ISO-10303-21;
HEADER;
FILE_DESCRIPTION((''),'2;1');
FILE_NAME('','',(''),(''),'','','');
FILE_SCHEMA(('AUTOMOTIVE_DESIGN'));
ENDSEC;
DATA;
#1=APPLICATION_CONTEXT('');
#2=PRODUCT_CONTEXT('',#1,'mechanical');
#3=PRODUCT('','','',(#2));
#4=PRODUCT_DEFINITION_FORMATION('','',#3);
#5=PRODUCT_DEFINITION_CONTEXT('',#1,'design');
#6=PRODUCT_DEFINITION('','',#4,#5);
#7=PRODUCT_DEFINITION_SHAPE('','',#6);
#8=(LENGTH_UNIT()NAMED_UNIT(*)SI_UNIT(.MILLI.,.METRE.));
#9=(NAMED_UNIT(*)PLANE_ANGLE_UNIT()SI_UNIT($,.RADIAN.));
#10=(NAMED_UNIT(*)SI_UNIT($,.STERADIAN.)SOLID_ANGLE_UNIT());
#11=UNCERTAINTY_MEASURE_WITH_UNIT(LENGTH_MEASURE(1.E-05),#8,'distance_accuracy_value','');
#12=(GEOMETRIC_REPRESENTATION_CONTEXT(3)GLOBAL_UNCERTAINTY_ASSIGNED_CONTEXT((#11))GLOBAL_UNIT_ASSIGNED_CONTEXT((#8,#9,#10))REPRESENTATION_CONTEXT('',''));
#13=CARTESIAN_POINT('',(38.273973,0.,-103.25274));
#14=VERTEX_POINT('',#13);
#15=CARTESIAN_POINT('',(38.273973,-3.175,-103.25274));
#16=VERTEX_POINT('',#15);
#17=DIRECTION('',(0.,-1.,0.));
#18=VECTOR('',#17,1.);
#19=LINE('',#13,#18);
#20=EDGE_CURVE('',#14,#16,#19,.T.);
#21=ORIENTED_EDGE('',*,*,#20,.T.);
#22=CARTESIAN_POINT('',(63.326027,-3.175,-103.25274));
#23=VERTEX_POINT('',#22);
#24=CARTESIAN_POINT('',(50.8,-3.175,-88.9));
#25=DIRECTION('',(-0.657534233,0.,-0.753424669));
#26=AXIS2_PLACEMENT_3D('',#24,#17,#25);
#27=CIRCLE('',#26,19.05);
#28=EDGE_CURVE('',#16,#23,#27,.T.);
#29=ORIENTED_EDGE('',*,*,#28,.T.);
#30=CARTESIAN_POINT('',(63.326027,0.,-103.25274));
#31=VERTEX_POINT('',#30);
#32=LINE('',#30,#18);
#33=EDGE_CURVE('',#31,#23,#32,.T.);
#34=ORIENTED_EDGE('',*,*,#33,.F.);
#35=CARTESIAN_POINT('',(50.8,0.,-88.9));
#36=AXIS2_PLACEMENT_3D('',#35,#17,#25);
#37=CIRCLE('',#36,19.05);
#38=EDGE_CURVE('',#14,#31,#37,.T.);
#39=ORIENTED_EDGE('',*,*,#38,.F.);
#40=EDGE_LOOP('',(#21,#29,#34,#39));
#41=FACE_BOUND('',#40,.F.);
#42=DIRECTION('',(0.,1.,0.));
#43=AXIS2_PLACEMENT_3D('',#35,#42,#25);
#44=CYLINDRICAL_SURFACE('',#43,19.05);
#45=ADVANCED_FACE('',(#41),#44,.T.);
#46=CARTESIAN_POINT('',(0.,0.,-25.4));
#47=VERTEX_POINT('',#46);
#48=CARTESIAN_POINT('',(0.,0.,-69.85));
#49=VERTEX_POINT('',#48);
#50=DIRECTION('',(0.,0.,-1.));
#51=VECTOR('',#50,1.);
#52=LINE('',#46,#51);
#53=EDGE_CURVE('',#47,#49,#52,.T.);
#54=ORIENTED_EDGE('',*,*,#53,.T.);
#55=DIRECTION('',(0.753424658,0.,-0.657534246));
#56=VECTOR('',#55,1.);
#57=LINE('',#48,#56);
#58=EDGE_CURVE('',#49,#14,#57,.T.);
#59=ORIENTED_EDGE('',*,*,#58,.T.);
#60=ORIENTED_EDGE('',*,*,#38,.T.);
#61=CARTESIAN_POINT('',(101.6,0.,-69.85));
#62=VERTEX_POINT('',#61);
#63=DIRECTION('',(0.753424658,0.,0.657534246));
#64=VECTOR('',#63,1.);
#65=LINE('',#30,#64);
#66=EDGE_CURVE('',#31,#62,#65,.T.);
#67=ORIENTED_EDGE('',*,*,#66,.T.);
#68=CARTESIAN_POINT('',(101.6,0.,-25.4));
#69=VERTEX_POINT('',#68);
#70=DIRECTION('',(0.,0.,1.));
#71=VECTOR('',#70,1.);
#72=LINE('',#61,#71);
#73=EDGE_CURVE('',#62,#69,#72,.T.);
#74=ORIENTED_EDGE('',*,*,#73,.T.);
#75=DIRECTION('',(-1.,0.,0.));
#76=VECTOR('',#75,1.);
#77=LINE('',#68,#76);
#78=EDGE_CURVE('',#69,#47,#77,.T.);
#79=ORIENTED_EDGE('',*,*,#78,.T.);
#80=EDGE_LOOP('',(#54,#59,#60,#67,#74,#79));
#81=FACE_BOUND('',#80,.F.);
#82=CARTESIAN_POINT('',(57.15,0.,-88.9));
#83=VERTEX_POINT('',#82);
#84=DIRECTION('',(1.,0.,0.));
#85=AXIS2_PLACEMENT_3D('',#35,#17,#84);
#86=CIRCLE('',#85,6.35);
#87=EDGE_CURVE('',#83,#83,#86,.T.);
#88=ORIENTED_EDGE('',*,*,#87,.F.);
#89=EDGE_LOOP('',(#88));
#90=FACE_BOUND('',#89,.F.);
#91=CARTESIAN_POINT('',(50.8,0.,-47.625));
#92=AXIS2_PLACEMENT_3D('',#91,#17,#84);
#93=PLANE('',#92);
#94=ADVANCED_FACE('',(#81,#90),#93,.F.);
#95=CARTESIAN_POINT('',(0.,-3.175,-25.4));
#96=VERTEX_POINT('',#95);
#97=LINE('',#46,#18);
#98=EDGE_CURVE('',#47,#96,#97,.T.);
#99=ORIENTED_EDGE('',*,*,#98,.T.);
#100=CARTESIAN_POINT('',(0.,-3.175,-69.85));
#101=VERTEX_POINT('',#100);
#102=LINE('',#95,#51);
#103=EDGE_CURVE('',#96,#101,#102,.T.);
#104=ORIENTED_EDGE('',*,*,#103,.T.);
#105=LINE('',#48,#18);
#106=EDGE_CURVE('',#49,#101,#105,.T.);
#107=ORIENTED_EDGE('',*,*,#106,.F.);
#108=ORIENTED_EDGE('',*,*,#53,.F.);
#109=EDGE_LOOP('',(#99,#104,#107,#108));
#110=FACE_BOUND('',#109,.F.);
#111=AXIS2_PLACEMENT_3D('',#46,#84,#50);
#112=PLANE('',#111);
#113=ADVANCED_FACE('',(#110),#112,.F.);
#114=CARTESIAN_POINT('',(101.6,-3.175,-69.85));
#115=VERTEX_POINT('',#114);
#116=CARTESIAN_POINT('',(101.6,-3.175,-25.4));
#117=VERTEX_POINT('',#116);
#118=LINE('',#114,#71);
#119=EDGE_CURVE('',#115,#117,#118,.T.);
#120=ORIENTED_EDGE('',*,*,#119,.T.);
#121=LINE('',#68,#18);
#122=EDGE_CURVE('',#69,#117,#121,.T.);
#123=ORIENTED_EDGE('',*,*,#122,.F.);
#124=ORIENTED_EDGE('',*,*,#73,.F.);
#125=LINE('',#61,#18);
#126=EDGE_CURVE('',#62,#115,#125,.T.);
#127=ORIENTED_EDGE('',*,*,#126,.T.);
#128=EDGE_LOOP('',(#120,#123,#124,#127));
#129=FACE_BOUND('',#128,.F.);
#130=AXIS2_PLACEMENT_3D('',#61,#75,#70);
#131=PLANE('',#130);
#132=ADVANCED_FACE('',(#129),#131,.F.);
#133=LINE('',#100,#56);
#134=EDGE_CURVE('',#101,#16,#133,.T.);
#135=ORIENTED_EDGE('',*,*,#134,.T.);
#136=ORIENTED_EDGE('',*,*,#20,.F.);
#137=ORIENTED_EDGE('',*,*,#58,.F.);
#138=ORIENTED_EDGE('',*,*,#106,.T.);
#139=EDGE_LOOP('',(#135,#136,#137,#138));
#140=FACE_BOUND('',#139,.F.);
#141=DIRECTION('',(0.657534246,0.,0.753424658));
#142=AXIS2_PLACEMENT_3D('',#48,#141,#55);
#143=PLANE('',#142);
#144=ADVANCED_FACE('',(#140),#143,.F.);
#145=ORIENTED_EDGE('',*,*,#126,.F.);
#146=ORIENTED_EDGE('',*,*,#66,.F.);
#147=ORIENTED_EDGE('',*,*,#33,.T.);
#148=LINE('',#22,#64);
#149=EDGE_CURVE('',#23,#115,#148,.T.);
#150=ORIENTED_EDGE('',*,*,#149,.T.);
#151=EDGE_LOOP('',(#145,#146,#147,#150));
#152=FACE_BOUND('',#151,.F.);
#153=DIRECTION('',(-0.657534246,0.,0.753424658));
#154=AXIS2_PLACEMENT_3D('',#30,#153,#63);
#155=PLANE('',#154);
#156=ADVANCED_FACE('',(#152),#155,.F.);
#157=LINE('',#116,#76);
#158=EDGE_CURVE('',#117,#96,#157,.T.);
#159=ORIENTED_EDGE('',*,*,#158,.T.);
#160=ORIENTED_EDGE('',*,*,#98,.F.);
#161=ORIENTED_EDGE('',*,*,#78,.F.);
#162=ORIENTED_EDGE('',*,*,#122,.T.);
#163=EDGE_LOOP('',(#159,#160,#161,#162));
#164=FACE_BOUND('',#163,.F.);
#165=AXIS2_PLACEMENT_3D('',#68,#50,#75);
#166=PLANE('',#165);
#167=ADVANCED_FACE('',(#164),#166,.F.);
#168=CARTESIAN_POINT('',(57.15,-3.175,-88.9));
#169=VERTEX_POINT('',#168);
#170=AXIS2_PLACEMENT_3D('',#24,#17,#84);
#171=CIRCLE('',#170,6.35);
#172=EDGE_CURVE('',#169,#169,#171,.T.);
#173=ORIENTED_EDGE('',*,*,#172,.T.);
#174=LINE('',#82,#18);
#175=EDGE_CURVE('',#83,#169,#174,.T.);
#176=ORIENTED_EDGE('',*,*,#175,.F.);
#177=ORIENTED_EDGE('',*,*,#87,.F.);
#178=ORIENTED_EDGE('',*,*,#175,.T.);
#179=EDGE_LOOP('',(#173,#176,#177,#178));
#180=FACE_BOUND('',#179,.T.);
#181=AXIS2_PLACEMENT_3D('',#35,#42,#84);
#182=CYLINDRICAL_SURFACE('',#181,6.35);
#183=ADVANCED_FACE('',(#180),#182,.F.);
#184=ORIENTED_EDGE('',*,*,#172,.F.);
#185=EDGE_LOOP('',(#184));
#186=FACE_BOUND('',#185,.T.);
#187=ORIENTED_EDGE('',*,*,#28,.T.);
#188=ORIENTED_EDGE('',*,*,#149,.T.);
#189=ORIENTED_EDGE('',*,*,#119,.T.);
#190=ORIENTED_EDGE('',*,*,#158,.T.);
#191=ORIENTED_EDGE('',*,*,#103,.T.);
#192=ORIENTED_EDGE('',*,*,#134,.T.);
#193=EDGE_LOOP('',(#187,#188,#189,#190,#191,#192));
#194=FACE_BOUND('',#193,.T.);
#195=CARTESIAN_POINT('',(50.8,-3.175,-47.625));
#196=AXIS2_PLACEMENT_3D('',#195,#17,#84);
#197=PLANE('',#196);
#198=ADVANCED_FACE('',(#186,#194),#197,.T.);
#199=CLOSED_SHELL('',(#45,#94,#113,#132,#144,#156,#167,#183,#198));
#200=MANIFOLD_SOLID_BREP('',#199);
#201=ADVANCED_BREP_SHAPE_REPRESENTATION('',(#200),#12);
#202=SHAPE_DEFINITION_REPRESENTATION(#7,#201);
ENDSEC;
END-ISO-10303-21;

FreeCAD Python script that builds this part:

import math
import FreeCAD as App
import Part
import Sketcher
from FreeCAD import Vector
Q = App.Units.Quantity

doc = App.newDocument("Part")
body = doc.addObject("PartDesign::Body", "Body")

# Sketch on XZ plane
sketch1 = doc.addObject("Sketcher::SketchObject", "Sketch")
body.addObject(sketch1)
sketch1.AttachmentSupport = (doc.XZ_Plane, [""])
sketch1.MapMode = "FlatFace"
sketch1.addGeometry(Part.LineSegment(Vector(102, -25, 0), Vector(0, -25, 0)), False)
sketch1.addGeometry(Part.LineSegment(Vector(0, -25, 0), Vector(0, -70, 0)), False)
sketch1.addGeometry(Part.LineSegment(Vector(0, -70, 0), Vector(38, -103, 0)), False)
sketch1.addGeometry(Part.ArcOfCircle(Part.Circle(Vector(51, -89, 0), Vector(0, 0, 1), 19), math.radians(-131), math.radians(-49)), False)
sketch1.addGeometry(Part.LineSegment(Vector(63, -103, 0), Vector(102, -70, 0)), False)
sketch1.addGeometry(Part.LineSegment(Vector(102, -70, 0), Vector(102, -25, 0)), False)
sketch1.addGeometry(Part.Circle(Vector(51, -89, 0), Vector(0, 0, 1), 6), False)
sketch1.addConstraint(Sketcher.Constraint("Coincident", 0, 2, 1, 1))
sketch1.addConstraint(Sketcher.Constraint("Coincident", 1, 2, 2, 1))
sketch1.addConstraint(Sketcher.Constraint("Tangent", 2, 2, 3, 1))
sketch1.addConstraint(Sketcher.Constraint("Tangent", 3, 2, 4, 1))
sketch1.addConstraint(Sketcher.Constraint("Coincident", 4, 2, 5, 1))
sketch1.addConstraint(Sketcher.Constraint("Coincident", 5, 2, 0, 1))
sketch1.addConstraint(Sketcher.Constraint("Horizontal", 0))
sketch1.addConstraint(Sketcher.Constraint("Vertical", 1))
sketch1.addConstraint(Sketcher.Constraint("Vertical", 5))
sketch1.addConstraint(Sketcher.Constraint("Coincident", 6, 3, 3, 3))
sketch1.addConstraint(Sketcher.Constraint("PointOnObject", 0, 2, -2))
sketch1.addConstraint(Sketcher.Constraint("Horizontal", 2, 2, 3, 2))
sketch1.addConstraint(Sketcher.Constraint("Horizontal", 1, 2, 4, 2))
sketch1.addConstraint(Sketcher.Constraint("Diameter", 6, Q("0.5 in")))
sketch1.addConstraint(Sketcher.Constraint("DistanceX", 0, 2, 0, 1, Q("4 in")))
sketch1.addConstraint(Sketcher.Constraint("Radius", 3, Q("0.75 in")))
sketch1.addConstraint(Sketcher.Constraint("Distance", 2, Q("2 in")))
sketch1.addConstraint(Sketcher.Constraint("DistanceY", 0, 2, -1, 1, Q("1 in")))
sketch1.addConstraint(Sketcher.Constraint("DistanceY", 1, 2, 1, 1, Q("1.75 in")))
pad1 = doc.addObject("PartDesign::Pad", "Pad")
body.addObject(pad1)
pad1.Profile = sketch1
pad1.Length = Q("0.125 in")

doc.recompute()
